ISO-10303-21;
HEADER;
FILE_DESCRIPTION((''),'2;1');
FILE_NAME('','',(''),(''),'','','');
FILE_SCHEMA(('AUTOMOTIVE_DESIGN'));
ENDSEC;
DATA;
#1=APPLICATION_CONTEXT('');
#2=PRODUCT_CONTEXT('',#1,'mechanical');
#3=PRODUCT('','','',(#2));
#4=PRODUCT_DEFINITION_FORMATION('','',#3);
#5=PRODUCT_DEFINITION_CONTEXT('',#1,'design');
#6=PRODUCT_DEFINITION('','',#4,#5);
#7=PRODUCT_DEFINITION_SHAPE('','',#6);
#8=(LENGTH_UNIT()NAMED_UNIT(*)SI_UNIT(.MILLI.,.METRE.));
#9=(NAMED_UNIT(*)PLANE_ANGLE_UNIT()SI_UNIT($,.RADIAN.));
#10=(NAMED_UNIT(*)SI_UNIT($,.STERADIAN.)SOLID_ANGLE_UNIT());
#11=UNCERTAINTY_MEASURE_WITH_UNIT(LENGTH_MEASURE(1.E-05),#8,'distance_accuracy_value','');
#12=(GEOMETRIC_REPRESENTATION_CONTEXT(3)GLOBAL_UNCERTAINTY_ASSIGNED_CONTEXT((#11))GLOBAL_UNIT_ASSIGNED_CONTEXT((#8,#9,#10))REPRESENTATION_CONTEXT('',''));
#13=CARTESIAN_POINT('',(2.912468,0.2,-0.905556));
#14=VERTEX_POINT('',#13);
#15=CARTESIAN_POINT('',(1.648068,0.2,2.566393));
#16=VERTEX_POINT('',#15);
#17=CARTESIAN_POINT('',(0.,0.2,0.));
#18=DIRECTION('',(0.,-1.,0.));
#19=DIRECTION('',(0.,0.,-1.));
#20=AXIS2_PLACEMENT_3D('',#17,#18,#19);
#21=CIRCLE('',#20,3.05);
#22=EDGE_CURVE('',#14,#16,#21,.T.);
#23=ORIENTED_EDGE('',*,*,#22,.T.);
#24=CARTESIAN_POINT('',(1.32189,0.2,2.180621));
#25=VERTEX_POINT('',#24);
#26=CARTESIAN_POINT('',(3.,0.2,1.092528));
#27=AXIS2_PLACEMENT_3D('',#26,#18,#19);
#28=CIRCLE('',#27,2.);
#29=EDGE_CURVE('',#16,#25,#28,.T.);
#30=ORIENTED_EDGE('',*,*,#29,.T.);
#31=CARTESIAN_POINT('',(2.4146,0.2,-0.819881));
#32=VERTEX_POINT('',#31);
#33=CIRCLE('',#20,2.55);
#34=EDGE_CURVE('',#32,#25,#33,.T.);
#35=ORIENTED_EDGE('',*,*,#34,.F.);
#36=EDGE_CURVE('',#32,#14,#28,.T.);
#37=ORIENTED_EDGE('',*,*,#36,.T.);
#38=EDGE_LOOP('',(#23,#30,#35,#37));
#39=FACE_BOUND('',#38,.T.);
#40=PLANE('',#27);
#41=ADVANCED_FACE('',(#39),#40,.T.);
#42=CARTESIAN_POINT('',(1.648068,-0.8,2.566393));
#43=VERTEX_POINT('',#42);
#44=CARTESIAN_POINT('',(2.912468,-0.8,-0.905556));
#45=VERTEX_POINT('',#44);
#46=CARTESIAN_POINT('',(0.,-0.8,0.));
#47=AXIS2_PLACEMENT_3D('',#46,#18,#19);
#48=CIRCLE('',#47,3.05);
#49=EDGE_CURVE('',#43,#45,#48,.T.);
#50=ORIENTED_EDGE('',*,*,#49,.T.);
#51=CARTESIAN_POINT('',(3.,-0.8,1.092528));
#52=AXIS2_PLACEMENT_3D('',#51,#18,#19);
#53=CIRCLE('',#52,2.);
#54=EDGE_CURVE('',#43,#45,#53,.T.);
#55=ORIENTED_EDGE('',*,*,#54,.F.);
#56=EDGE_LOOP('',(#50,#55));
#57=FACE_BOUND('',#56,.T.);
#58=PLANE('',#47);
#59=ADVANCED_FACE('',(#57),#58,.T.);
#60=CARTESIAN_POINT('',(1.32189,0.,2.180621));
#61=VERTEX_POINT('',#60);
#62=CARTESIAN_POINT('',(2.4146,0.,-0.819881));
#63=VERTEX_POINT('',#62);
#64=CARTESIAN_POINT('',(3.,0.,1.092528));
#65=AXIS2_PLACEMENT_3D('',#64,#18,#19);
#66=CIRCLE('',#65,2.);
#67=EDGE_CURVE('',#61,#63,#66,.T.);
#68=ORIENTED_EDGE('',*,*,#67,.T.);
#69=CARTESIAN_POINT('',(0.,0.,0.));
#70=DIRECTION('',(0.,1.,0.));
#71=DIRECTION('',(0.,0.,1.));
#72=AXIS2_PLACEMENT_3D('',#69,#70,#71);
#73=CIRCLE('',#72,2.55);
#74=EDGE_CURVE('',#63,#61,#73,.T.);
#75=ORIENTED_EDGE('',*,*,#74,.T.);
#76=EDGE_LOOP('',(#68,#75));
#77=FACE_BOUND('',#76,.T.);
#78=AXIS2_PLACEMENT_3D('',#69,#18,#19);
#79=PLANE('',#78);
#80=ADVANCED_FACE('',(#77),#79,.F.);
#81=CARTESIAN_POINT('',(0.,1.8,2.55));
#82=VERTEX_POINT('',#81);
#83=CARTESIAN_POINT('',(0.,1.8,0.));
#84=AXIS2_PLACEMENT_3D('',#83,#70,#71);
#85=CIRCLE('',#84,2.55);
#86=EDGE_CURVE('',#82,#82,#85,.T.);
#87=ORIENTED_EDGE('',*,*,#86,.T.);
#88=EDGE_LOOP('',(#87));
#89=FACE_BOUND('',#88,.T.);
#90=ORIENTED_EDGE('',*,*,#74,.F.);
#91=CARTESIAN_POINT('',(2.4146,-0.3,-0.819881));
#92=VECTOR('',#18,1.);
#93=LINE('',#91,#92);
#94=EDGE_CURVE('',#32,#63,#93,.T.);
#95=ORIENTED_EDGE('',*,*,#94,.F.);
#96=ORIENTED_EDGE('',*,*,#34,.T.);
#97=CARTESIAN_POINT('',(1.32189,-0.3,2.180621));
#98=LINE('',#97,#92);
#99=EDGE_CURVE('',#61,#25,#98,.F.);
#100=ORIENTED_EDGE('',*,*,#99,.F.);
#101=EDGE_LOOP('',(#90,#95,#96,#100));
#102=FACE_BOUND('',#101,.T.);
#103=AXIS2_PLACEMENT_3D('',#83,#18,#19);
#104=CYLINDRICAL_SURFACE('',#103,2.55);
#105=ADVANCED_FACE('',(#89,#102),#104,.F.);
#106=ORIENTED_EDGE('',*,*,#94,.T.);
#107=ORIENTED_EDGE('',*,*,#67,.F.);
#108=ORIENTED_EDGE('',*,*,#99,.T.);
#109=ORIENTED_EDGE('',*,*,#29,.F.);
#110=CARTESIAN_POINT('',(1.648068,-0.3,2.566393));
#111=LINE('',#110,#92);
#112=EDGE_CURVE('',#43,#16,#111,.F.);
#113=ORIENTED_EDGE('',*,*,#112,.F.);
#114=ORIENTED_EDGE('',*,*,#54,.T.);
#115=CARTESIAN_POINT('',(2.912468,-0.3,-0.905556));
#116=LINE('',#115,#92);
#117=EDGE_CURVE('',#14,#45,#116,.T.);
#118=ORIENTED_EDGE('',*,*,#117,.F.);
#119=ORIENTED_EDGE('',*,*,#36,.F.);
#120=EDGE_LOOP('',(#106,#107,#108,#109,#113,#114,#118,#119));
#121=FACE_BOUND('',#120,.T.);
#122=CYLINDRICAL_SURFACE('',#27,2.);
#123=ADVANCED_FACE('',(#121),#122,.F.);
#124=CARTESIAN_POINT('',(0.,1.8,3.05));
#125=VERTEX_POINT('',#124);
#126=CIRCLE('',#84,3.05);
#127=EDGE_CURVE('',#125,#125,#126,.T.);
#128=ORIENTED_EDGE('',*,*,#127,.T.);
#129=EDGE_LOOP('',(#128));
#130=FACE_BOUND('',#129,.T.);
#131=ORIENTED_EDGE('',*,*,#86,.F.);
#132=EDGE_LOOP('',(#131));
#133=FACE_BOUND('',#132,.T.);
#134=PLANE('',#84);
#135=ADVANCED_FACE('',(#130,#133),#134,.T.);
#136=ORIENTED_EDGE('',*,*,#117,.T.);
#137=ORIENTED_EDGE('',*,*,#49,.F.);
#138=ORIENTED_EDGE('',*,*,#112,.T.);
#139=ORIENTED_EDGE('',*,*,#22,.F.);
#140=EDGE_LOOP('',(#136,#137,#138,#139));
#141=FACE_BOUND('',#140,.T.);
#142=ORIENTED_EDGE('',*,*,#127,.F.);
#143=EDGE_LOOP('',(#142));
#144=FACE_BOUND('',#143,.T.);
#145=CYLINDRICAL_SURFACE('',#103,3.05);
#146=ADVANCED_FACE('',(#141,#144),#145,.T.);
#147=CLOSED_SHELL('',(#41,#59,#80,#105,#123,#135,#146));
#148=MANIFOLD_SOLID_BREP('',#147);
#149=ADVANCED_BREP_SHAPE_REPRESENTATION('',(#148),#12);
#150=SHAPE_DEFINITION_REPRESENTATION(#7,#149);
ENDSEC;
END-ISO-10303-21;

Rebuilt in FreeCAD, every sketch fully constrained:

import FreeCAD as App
import Part
import Sketcher

V = App.Vector
Q = App.Units.Quantity

doc = App.newDocument("Part")
body = doc.addObject("PartDesign::Body", "Body")

sketch1 = body.newObject("Sketcher::SketchObject", "Sketch")
sketch1.AttachmentSupport = (doc.getObject("XZ_Plane"), [""])
sketch1.MapMode = "FlatFace"
sketch1.addGeometry([
    Part.Circle(V(0, 0, 0), V(0, 0, 1), 3.05),
    Part.Circle(V(0, 0, 0), V(0, 0, 1), 2.55),
], False)
sketch1.addConstraint([
    Sketcher.Constraint("Coincident", 0, 3, -1, 1),
    Sketcher.Constraint("Coincident", 1, 3, -1, 1),
    Sketcher.Constraint("Diameter", 0, Q("6.1 mm")),
    Sketcher.Constraint("Diameter", 1, Q("5.1 mm")),
])
pad1 = body.newObject("PartDesign::Pad", "Pad")
pad1.Profile = sketch1
pad1.Length = 1.8
pad1.Reversed = True

sketch2 = body.newObject("Sketcher::SketchObject", "Sketch001")
sketch2.AttachmentSupport = (doc.getObject("XZ_Plane"), [""])
sketch2.MapMode = "FlatFace"
sketch2.AttachmentOffset = App.Placement(V(0, 0, 0.8), App.Rotation())
sketch2.addGeometry(Part.Circle(V(0, 0, 0), V(0, 0, 1), 3.05), False)
sketch2.addConstraint([
    Sketcher.Constraint("Coincident", 0, 3, -1, 1),
    Sketcher.Constraint("Diameter", 0, Q("6.1 mm")),
])
pad2 = body.newObject("PartDesign::Pad", "Pad001")
pad2.Profile = sketch2
pad2.Length = 0.8
pad2.Reversed = True

sketch3 = body.newObject("Sketcher::SketchObject", "Sketch002")
sketch3.AttachmentSupport = (doc.getObject("XZ_Plane"), [""])
sketch3.MapMode = "FlatFace"
sketch3.AttachmentOffset = App.Placement(V(0, 0, 0.8), App.Rotation())
sketch3.addGeometry(Part.Circle(V(3, 1.092528, 0), V(0, 0, 1), 2), False)
sketch3.addConstraint([
    Sketcher.Constraint("Diameter", 0, Q("4 mm")),
    Sketcher.Constraint("DistanceX", -1, 1, 0, 3, Q("3 mm")),
    Sketcher.Constraint("DistanceY", -1, 1, 0, 3, Q("1.092528 mm")),
])
pocket1 = body.newObject("PartDesign::Pocket", "Pocket")
pocket1.Profile = sketch3
pocket1.Length = 1

doc.recompute()
